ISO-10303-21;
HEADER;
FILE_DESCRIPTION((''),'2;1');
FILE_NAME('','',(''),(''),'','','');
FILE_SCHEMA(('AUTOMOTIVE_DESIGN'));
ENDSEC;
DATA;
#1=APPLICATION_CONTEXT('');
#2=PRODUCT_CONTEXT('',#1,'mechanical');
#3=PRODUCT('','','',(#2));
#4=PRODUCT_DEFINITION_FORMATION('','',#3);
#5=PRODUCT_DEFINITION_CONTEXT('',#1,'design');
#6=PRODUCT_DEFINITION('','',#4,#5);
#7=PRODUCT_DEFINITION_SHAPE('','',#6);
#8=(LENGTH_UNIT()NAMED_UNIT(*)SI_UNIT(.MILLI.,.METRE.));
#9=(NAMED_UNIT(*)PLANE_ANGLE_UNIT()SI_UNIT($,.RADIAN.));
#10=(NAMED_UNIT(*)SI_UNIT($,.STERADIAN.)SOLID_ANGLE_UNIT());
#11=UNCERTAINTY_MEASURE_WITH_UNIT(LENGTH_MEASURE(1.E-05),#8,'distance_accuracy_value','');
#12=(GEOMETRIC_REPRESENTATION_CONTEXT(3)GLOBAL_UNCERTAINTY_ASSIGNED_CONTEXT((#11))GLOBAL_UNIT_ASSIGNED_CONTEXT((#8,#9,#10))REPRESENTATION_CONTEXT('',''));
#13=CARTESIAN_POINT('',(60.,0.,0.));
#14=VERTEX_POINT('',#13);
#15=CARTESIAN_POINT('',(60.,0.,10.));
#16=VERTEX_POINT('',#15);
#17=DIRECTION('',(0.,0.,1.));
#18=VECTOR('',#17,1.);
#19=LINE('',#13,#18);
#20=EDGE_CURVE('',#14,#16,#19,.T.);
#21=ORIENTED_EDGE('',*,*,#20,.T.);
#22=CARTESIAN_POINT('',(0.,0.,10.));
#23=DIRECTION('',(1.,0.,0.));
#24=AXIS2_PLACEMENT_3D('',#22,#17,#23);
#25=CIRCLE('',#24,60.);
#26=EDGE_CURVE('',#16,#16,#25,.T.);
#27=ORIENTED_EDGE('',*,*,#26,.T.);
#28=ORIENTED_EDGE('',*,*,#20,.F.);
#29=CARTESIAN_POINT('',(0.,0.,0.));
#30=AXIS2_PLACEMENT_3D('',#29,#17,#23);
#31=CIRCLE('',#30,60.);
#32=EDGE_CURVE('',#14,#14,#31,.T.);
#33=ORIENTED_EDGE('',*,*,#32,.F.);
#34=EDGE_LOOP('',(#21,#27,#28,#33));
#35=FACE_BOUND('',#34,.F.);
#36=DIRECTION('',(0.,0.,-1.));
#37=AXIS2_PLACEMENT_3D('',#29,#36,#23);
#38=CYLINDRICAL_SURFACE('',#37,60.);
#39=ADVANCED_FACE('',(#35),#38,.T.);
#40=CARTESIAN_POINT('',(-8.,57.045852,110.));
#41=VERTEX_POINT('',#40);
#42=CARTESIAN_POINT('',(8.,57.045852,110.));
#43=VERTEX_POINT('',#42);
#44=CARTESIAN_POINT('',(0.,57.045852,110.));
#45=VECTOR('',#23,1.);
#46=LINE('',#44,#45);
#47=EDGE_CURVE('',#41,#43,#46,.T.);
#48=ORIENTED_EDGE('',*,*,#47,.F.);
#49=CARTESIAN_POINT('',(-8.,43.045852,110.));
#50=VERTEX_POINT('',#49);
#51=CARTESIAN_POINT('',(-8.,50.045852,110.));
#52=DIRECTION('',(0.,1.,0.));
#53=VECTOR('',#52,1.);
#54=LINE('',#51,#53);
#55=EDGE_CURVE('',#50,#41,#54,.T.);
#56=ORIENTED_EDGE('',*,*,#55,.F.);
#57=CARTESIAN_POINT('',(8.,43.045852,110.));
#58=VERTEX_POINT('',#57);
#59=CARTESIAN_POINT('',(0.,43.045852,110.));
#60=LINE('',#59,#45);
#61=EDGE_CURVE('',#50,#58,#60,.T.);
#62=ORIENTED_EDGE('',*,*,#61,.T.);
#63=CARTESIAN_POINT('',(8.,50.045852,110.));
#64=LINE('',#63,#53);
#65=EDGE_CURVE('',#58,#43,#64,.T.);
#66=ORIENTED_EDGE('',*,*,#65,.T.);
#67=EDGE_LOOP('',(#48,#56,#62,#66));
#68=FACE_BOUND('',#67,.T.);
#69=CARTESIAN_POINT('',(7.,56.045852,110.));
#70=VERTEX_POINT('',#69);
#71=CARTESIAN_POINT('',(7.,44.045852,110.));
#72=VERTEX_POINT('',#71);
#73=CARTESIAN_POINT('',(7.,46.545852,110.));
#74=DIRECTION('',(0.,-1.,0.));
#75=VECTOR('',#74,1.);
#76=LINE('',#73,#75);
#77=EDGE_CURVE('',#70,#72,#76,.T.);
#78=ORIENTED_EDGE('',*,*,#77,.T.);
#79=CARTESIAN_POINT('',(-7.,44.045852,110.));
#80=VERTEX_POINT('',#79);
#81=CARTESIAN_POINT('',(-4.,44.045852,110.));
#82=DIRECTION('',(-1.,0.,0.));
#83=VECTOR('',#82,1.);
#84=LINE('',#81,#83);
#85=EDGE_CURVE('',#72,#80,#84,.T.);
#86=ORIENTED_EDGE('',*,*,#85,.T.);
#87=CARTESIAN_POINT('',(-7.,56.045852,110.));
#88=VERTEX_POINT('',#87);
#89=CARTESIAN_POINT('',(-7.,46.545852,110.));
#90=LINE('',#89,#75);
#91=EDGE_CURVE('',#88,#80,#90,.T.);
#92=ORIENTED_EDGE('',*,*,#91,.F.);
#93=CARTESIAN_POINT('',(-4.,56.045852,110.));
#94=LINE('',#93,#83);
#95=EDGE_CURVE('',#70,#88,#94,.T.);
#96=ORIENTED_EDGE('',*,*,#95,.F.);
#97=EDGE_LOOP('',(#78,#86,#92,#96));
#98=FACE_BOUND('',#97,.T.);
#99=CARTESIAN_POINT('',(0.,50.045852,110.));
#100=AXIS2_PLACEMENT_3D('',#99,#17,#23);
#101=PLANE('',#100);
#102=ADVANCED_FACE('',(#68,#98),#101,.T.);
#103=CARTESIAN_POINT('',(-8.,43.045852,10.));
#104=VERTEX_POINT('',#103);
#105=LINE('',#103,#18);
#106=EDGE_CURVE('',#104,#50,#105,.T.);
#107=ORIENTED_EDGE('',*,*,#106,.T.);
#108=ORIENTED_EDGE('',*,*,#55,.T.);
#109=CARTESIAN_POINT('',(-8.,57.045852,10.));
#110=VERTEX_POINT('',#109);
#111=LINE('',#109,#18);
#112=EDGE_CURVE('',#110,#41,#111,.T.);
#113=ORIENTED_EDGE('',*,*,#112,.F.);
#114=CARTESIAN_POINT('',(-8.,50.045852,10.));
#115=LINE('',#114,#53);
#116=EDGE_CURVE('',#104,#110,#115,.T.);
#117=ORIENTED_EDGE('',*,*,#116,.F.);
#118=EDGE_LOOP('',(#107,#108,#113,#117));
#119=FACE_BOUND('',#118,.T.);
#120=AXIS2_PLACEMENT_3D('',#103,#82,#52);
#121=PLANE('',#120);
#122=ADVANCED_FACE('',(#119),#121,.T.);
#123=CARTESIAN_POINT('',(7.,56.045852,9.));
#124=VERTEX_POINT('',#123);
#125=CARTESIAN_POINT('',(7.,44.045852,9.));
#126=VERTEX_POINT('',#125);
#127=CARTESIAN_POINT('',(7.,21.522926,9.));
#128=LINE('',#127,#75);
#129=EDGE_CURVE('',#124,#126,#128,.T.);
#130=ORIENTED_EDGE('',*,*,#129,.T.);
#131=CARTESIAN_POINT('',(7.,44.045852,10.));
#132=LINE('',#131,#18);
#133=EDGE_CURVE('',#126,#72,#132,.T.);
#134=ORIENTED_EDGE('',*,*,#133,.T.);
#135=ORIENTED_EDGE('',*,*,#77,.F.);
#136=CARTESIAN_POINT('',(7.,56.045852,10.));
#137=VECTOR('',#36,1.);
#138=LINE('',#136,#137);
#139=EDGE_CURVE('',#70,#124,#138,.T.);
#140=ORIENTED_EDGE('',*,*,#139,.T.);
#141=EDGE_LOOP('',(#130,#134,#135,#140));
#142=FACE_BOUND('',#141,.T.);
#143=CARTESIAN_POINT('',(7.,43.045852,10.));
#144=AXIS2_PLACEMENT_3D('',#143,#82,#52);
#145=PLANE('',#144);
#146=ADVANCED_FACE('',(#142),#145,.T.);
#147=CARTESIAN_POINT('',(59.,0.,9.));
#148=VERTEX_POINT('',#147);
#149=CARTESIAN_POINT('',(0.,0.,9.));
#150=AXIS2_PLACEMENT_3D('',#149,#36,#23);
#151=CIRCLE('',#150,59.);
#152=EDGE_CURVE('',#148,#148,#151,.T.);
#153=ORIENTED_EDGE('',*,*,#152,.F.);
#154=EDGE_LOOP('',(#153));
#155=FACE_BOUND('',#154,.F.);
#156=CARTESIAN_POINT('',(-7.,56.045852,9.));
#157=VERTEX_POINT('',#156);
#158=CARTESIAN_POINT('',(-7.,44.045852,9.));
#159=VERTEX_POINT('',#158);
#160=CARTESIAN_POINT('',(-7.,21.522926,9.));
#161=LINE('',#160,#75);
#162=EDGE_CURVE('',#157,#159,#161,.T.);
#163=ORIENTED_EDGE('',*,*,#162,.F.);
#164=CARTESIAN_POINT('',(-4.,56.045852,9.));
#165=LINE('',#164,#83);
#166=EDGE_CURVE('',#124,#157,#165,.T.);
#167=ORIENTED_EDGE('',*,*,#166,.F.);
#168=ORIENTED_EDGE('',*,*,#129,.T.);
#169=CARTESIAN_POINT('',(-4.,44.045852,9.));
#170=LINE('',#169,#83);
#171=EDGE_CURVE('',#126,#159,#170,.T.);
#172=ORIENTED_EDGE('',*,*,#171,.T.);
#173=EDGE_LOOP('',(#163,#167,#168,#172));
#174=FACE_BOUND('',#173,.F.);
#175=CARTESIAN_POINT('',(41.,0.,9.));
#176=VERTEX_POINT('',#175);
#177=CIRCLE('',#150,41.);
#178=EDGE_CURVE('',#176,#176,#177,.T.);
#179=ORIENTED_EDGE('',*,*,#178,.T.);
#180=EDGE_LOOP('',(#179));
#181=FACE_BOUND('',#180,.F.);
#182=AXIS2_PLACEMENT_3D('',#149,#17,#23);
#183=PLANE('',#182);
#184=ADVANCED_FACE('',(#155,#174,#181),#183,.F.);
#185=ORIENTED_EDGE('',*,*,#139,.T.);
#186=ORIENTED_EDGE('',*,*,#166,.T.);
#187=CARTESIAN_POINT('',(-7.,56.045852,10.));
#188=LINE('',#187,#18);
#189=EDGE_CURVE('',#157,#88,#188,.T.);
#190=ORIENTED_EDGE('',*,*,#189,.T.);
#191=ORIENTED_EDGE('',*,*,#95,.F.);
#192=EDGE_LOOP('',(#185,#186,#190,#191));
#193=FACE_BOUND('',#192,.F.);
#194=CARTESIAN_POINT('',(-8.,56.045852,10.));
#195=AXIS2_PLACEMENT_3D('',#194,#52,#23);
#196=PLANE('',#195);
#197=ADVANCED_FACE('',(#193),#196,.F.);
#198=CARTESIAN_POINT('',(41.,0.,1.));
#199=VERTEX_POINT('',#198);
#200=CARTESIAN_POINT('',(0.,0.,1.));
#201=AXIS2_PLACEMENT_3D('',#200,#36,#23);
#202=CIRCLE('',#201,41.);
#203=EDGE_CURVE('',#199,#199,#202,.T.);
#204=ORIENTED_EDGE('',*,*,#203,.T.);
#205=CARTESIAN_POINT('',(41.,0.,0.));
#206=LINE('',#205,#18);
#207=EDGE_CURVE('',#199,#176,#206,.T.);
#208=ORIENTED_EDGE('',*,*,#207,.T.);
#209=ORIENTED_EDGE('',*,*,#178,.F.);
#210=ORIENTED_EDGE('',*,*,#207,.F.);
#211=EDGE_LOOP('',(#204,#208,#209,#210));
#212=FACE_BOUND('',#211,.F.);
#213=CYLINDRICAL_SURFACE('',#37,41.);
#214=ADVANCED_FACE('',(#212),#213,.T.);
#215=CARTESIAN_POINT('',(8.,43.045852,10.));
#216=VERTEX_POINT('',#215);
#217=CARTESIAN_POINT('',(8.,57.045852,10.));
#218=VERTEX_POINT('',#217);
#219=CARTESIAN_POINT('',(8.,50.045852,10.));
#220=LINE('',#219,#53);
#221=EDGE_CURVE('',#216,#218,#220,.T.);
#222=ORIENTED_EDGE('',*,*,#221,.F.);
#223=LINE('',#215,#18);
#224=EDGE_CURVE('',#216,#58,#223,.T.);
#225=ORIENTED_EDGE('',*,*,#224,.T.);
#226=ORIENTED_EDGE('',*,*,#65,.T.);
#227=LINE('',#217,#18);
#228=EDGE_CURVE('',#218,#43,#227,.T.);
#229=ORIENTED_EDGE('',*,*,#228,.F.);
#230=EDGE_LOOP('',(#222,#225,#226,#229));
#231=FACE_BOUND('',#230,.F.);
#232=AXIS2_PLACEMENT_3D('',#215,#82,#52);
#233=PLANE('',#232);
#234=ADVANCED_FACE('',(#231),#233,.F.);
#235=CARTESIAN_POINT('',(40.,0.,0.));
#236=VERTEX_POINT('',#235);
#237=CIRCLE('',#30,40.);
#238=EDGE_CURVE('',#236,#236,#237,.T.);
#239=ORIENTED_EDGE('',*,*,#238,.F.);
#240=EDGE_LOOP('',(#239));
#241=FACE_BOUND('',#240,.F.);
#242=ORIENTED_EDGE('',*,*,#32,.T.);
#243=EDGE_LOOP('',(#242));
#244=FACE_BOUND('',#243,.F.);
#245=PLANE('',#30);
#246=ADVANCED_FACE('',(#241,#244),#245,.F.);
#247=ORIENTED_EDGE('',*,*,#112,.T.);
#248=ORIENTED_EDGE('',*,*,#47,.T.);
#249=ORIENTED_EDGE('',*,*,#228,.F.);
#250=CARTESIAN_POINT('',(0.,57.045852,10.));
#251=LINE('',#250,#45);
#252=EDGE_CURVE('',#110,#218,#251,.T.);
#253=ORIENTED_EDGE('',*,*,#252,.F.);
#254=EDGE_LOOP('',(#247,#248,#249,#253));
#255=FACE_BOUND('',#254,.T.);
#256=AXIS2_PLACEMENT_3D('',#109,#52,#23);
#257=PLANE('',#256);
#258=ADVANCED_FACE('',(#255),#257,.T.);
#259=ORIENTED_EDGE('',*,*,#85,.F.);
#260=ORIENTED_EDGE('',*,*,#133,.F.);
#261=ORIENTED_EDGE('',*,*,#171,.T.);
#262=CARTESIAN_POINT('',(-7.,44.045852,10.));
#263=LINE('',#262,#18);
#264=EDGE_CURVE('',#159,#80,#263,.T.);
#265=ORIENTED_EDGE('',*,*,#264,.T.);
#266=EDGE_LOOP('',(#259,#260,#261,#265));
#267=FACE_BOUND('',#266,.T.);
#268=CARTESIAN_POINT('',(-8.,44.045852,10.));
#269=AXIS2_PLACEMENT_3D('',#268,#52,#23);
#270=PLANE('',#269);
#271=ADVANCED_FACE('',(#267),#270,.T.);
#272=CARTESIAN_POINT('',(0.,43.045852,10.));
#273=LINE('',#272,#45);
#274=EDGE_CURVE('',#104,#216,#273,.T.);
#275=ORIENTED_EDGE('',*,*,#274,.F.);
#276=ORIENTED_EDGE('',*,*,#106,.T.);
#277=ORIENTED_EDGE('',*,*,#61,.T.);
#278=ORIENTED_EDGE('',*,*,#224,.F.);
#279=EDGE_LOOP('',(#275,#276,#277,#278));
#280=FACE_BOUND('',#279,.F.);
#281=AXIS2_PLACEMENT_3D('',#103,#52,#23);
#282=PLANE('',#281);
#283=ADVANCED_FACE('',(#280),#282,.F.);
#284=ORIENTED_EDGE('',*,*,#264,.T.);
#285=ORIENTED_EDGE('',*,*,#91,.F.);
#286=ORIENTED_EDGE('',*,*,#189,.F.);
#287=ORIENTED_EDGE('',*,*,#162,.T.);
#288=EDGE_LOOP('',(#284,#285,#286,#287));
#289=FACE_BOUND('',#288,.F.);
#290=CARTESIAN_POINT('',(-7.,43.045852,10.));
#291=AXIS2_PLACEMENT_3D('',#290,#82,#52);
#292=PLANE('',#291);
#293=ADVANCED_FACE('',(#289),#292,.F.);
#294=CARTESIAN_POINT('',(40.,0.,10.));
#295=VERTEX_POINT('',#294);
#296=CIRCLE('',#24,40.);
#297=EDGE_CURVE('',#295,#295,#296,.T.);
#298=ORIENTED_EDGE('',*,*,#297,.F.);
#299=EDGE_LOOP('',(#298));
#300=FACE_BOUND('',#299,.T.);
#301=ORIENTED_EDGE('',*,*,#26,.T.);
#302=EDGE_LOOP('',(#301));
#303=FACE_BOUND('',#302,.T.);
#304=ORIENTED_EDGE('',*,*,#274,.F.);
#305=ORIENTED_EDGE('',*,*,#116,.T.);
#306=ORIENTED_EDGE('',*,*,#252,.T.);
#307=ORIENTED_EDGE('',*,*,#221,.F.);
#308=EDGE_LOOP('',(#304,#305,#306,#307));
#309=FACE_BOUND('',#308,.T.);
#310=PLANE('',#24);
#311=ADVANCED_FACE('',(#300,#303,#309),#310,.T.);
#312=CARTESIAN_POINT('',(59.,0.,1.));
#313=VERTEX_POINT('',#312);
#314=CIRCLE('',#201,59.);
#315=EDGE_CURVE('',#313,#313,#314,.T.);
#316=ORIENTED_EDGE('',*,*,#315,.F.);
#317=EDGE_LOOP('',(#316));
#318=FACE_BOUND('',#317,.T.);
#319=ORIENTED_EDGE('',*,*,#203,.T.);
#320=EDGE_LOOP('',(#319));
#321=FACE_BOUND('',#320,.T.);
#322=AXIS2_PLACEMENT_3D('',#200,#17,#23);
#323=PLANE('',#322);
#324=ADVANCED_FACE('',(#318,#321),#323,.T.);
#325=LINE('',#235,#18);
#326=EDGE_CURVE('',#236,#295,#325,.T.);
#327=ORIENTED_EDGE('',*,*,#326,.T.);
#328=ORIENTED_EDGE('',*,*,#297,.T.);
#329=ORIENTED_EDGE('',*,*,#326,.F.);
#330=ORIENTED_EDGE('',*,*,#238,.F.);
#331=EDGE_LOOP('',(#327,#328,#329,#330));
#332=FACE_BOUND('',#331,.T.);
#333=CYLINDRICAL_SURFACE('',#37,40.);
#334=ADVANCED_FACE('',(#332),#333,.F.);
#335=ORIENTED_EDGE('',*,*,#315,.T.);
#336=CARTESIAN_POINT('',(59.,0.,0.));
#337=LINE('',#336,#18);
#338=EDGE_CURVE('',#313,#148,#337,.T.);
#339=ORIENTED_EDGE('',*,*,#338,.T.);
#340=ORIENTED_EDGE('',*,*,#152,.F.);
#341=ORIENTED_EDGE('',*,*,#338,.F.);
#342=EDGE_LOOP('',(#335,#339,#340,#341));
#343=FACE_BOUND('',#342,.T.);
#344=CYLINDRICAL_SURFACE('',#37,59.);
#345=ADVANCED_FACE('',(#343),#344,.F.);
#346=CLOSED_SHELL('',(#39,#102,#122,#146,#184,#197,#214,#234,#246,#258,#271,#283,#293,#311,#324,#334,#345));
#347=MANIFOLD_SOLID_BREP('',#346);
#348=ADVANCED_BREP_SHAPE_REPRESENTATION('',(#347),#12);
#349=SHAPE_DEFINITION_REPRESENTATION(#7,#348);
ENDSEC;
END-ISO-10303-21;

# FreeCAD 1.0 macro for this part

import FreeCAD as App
import Part
import Sketcher
from FreeCAD import Vector


def faces_at(feature, points):
    """Names of the faces that lie closest to the given points."""
    faces = feature.Shape.Faces
    near = lambda p: min(range(len(faces)), key=lambda i: faces[i].distToShape(Part.Vertex(*p))[0])
    return sorted({f"Face{near(p) + 1}" for p in points})

doc = App.newDocument("Part")
body = doc.addObject("PartDesign::Body", "Body")

# Sketch on XY plane
sketch1 = doc.addObject("Sketcher::SketchObject", "Sketch")
body.addObject(sketch1)
sketch1.AttachmentSupport = (doc.XY_Plane, [""])
sketch1.MapMode = "FlatFace"
sketch1.addGeometry(Part.Circle(Vector(0, 0, 0), Vector(0, 0, 1), 60), False)
sketch1.addConstraint([
    Sketcher.Constraint("Coincident", 0, 3, -1, 1),
    Sketcher.Constraint("Diameter", 0, 120.0),
])
pad1 = doc.addObject("PartDesign::Pad", "Pad")
body.addObject(pad1)
pad1.Profile = sketch1
pad1.Length = 10

# Sketch on XY plane
sketch2 = doc.addObject("Sketcher::SketchObject", "Sketch001")
body.addObject(sketch2)
sketch2.AttachmentSupport = (doc.XY_Plane, [""])
sketch2.MapMode = "FlatFace"
sketch2.addGeometry(Part.Circle(Vector(0, 0, 0), Vector(0, 0, 1), 40), False)
sketch2.addConstraint([
    Sketcher.Constraint("Coincident", 0, 3, -1, 1),
    Sketcher.Constraint("Diameter", 0, 80.0),
])
pocket1 = doc.addObject("PartDesign::Pocket", "Pocket")
body.addObject(pocket1)
pocket1.Profile = sketch2
pocket1.Length = 10
pocket1.Reversed = True

# Sketch on XY plane
sketch3 = doc.addObject("Sketcher::SketchObject", "Sketch002")
body.addObject(sketch3)
sketch3.AttachmentSupport = (doc.XY_Plane, [""])
sketch3.MapMode = "FlatFace"
sketch3.AttachmentOffset = App.Placement(Vector(0, 0, 10), App.Rotation())
sketch3.addGeometry([
    Part.LineSegment(Vector(-8, 57.045852, 0), Vector(-8, 43.045852, 0)),
    Part.LineSegment(Vector(-8, 43.045852, 0), Vector(8, 43.045852, 0)),
    Part.LineSegment(Vector(8, 43.045852, 0), Vector(8, 57.045852, 0)),
    Part.LineSegment(Vector(8, 57.045852, 0), Vector(-8, 57.045852, 0)),
], False)
sketch3.addConstraint([
    Sketcher.Constraint("Coincident", 0, 2, 1, 1),
    Sketcher.Constraint("Coincident", 1, 2, 2, 1),
    Sketcher.Constraint("Coincident", 2, 2, 3, 1),
    Sketcher.Constraint("Coincident", 3, 2, 0, 1),
    Sketcher.Constraint("Vertical", 0),
    Sketcher.Constraint("Horizontal", 1),
    Sketcher.Constraint("Vertical", 2),
    Sketcher.Constraint("Horizontal", 3),
    Sketcher.Constraint("DistanceX", 1, 1, 1, 2, 16.0),
    Sketcher.Constraint("DistanceY", 0, 2, 0, 1, 14.0),
    Sketcher.Constraint("DistanceX", 0, 2, -1, 1, 8.0),
    Sketcher.Constraint("DistanceY", -1, 1, 0, 2, 43.045852),
])
pad2 = doc.addObject("PartDesign::Pad", "Pad001")
body.addObject(pad2)
pad2.Profile = sketch3
pad2.Length = 100
doc.recompute()

thickness = doc.addObject("PartDesign::Thickness", "Thickness")
body.addObject(thickness)
thickness.Base = (pad2, faces_at(pad2, [(0, 50.046, 110)]))
thickness.Value = 1
thickness.Reversed = True
thickness.Join = "Intersection"

doc.recompute()
